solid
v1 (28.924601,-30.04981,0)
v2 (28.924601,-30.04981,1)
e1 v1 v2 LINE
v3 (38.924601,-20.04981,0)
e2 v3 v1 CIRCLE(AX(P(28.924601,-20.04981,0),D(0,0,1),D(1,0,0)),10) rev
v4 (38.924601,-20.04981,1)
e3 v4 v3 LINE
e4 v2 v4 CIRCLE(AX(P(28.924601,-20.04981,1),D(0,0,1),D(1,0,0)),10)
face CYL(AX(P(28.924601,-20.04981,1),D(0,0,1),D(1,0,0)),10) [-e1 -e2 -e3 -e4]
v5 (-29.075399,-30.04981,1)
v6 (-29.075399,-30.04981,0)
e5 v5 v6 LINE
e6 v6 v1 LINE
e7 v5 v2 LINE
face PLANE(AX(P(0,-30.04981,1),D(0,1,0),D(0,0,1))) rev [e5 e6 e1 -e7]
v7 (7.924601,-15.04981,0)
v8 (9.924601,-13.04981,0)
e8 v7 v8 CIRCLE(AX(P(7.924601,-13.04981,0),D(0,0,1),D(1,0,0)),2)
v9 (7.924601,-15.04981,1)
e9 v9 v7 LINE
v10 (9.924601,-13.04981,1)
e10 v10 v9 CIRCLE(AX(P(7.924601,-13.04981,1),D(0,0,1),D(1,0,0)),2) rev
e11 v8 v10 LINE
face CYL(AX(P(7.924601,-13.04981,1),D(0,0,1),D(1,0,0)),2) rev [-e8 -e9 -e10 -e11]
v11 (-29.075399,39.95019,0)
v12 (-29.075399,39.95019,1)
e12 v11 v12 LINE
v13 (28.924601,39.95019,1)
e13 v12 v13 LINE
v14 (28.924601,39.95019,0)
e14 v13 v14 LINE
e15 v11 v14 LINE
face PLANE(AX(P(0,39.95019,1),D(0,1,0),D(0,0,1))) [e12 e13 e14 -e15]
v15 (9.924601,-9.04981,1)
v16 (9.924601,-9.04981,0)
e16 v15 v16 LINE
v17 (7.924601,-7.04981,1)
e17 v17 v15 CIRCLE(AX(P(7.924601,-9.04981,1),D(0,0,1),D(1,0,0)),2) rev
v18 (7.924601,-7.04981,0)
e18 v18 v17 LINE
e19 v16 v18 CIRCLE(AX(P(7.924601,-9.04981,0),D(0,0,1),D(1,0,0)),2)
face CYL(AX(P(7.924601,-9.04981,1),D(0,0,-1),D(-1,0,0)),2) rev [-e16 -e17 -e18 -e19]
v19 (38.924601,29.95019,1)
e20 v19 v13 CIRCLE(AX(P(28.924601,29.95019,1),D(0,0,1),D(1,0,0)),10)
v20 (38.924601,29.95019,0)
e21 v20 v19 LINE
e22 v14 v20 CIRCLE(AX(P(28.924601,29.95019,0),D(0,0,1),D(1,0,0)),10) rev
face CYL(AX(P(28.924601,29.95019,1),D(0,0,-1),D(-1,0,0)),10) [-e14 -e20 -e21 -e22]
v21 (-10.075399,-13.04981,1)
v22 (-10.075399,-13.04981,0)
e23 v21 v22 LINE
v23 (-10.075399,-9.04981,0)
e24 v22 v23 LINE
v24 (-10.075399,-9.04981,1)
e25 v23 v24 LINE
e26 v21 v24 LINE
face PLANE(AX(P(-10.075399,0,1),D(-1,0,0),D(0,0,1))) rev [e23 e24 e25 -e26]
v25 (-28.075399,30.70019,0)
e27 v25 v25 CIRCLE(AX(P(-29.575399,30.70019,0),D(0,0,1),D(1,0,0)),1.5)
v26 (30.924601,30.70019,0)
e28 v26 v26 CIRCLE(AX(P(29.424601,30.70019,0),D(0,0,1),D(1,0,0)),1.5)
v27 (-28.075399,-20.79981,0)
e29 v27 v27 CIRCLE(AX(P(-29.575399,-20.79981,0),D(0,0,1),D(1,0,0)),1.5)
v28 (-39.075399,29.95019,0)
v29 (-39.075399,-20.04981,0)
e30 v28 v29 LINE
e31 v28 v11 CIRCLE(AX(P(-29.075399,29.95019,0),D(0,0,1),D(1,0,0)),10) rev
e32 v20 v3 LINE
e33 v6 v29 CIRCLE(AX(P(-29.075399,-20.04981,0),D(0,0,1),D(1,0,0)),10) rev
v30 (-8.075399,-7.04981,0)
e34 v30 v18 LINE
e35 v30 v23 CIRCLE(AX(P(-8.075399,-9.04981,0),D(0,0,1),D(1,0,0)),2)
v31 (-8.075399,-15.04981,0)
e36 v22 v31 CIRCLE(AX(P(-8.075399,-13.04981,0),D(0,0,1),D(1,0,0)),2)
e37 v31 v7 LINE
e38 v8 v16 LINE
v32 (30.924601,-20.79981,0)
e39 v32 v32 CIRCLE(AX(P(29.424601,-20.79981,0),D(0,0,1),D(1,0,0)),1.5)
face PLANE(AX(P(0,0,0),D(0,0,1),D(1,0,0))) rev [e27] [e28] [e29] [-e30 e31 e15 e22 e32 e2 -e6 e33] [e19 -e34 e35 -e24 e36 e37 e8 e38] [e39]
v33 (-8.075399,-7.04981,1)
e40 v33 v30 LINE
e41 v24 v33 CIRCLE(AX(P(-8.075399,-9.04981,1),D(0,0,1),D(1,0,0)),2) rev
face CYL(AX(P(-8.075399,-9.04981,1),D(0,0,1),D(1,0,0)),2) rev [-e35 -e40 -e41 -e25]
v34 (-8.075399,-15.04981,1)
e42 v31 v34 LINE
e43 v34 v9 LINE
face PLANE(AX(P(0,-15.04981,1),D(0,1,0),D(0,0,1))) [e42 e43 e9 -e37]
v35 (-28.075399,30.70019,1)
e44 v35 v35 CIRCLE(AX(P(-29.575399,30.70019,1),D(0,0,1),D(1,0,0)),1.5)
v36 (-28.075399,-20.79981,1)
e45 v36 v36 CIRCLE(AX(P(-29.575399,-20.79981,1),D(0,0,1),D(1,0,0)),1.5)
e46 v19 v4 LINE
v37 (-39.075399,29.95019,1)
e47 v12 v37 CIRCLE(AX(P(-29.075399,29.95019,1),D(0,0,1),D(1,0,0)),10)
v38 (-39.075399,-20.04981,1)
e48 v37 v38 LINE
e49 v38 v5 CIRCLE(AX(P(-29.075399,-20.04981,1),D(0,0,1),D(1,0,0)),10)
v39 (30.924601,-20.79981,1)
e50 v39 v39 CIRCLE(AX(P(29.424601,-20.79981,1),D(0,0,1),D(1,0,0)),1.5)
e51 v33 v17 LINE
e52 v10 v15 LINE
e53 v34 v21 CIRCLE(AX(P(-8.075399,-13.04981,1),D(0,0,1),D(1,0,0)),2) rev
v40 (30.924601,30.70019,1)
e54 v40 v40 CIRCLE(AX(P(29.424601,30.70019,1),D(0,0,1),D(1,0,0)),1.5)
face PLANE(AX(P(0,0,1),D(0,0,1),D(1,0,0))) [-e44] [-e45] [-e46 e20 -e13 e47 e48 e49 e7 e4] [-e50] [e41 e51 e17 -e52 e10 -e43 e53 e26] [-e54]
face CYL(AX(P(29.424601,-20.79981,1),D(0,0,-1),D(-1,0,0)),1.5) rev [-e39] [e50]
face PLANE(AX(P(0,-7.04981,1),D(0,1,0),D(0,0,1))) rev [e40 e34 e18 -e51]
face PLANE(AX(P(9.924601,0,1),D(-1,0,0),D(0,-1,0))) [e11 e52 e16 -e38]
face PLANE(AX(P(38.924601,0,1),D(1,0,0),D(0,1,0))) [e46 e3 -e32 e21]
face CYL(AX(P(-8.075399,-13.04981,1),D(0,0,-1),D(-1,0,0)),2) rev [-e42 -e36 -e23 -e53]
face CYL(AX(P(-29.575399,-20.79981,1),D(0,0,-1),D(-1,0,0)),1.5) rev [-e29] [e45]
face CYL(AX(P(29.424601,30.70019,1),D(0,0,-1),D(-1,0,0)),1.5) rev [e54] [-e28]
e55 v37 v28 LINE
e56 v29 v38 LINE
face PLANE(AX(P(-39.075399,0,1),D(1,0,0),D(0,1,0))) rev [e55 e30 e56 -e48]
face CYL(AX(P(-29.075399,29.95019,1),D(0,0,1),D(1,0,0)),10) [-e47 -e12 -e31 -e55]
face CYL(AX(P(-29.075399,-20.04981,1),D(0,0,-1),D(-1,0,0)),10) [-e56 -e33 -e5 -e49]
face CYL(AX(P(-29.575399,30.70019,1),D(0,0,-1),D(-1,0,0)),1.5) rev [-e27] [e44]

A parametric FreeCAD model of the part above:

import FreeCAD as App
import Part
import Sketcher
from FreeCAD import Vector


def edges_at(feature, points):
    """Names of the edges that pass closest to the given points."""
    edges = feature.Shape.Edges
    near = lambda p: min(range(len(edges)), key=lambda i: edges[i].distToShape(Part.Vertex(*p))[0])
    return sorted({f"Edge{near(p) + 1}" for p in points})

doc = App.newDocument("Part")
body = doc.addObject("PartDesign::Body", "Body")

# Sketch on XY plane
sketch1 = body.newObject("Sketcher::SketchObject", "Sketch")
sketch1.AttachmentSupport = (doc.getObject("XY_Plane"), [""])
sketch1.MapMode = "FlatFace"
sketch1.addGeometry(Part.LineSegment(Vector(-39.1, 40, 0), Vector(-39.1, -30, 0)), False)
sketch1.addGeometry(Part.LineSegment(Vector(-39.1, -30, 0), Vector(38.9, -30, 0)), False)
sketch1.addGeometry(Part.LineSegment(Vector(38.9, -30, 0), Vector(38.9, 40, 0)), False)
sketch1.addGeometry(Part.LineSegment(Vector(38.9, 40, 0), Vector(-39.1, 40, 0)), False)
sketch1.addGeometry(Part.LineSegment(Vector(9.9, -15, 0), Vector(-10.1, -15, 0)), False)
sketch1.addGeometry(Part.LineSegment(Vector(-10.1, -15, 0), Vector(-10.1, -7, 0)), False)
sketch1.addGeometry(Part.LineSegment(Vector(-10.1, -7, 0), Vector(9.9, -7, 0)), False)
sketch1.addGeometry(Part.LineSegment(Vector(9.9, -7, 0), Vector(9.9, -15, 0)), False)
sketch1.addGeometry(Part.Circle(Vector(-29.6, -20.8, 0), Vector(0, 0, 1), 1.5), False)
sketch1.addGeometry(Part.Circle(Vector(29.4, -20.8, 0), Vector(0, 0, 1), 1.5), False)
sketch1.addGeometry(Part.Circle(Vector(-29.6, 30.7, 0), Vector(0, 0, 1), 1.5), False)
sketch1.addGeometry(Part.Circle(Vector(29.4, 30.7, 0), Vector(0, 0, 1), 1.5), False)
sketch1.addConstraint(Sketcher.Constraint("Coincident", 0, 2, 1, 1))
sketch1.addConstraint(Sketcher.Constraint("Coincident", 1, 2, 2, 1))
sketch1.addConstraint(Sketcher.Constraint("Coincident", 2, 2, 3, 1))
sketch1.addConstraint(Sketcher.Constraint("Coincident", 3, 2, 0, 1))
sketch1.addConstraint(Sketcher.Constraint("Coincident", 4, 2, 5, 1))
sketch1.addConstraint(Sketcher.Constraint("Coincident", 5, 2, 6, 1))
sketch1.addConstraint(Sketcher.Constraint("Coincident", 6, 2, 7, 1))
sketch1.addConstraint(Sketcher.Constraint("Coincident", 7, 2, 4, 1))
sketch1.addConstraint(Sketcher.Constraint("Vertical", 0))
sketch1.addConstraint(Sketcher.Constraint("Horizontal", 1))
sketch1.addConstraint(Sketcher.Constraint("Vertical", 2))
sketch1.addConstraint(Sketcher.Constraint("Horizontal", 3))
sketch1.addConstraint(Sketcher.Constraint("Horizontal", 4))
sketch1.addConstraint(Sketcher.Constraint("Vertical", 5))
sketch1.addConstraint(Sketcher.Constraint("Horizontal", 6))
sketch1.addConstraint(Sketcher.Constraint("Vertical", 7))
sketch1.addConstraint(Sketcher.Constraint("Equal", 8, 9))
sketch1.addConstraint(Sketcher.Constraint("Equal", 9, 10))
sketch1.addConstraint(Sketcher.Constraint("Equal", 10, 11))
sketch1.addConstraint(Sketcher.Constraint("Horizontal", 8, 3, 9, 3))
sketch1.addConstraint(Sketcher.Constraint("Horizontal", 10, 3, 11, 3))
sketch1.addConstraint(Sketcher.Constraint("Vertical", 8, 3, 10, 3))
sketch1.addConstraint(Sketcher.Constraint("Vertical", 9, 3, 11, 3))
sketch1.addConstraint(Sketcher.Constraint("Diameter", 8, 3.0))
sketch1.addConstraint(Sketcher.Constraint("DistanceX", 1, 1, 1, 2, 78.0))
sketch1.addConstraint(Sketcher.Constraint("DistanceX", 4, 2, 4, 1, 20.0))
sketch1.addConstraint(Sketcher.Constraint("DistanceY", 0, 2, 0, 1, 70.0))
sketch1.addConstraint(Sketcher.Constraint("DistanceY", 5, 1, 5, 2, 8.0))
sketch1.addConstraint(Sketcher.Constraint("DistanceX", 8, 3, 9, 3, 59.0))
sketch1.addConstraint(Sketcher.Constraint("DistanceX", 0, 2, 4, 2, 29.0))
sketch1.addConstraint(Sketcher.Constraint("DistanceY", 0, 2, 4, 2, 15.0))
sketch1.addConstraint(Sketcher.Constraint("DistanceY", 8, 3, 10, 3, 51.5))
sketch1.addConstraint(Sketcher.Constraint("DistanceX", 0, 2, 8, 3, 9.5))
sketch1.addConstraint(Sketcher.Constraint("DistanceY", 0, 2, 8, 3, 9.25))
sketch1.addConstraint(Sketcher.Constraint("DistanceX", 8, 3, -1, 1, 29.575399))
sketch1.addConstraint(Sketcher.Constraint("DistanceY", 8, 3, -1, 1, 20.79981))
pad1 = body.newObject("PartDesign::Pad", "Pad")
pad1.Profile = sketch1
pad1.Length = 1
doc.recompute()

fillet = body.newObject("PartDesign::Fillet", "Fillet")
fillet.Base = (pad1, edges_at(pad1, [
    (38.925, -30.05, 0.5),
    (-39.075, -30.05, 0.5),
    (-39.075, 39.95, 0.5),
    (38.925, 39.95, 0.5),
]))
fillet.Radius = 10
doc.recompute()

fillet2 = body.newObject("PartDesign::Fillet", "Fillet001")
fillet2.Base = (fillet, edges_at(fillet, [
    (9.925, -15.05, 0.5),
    (9.925, -7.05, 0.5),
    (-10.075, -7.05, 0.5),
    (-10.075, -15.05, 0.5),
]))
fillet2.Radius = 2

doc.recompute()
